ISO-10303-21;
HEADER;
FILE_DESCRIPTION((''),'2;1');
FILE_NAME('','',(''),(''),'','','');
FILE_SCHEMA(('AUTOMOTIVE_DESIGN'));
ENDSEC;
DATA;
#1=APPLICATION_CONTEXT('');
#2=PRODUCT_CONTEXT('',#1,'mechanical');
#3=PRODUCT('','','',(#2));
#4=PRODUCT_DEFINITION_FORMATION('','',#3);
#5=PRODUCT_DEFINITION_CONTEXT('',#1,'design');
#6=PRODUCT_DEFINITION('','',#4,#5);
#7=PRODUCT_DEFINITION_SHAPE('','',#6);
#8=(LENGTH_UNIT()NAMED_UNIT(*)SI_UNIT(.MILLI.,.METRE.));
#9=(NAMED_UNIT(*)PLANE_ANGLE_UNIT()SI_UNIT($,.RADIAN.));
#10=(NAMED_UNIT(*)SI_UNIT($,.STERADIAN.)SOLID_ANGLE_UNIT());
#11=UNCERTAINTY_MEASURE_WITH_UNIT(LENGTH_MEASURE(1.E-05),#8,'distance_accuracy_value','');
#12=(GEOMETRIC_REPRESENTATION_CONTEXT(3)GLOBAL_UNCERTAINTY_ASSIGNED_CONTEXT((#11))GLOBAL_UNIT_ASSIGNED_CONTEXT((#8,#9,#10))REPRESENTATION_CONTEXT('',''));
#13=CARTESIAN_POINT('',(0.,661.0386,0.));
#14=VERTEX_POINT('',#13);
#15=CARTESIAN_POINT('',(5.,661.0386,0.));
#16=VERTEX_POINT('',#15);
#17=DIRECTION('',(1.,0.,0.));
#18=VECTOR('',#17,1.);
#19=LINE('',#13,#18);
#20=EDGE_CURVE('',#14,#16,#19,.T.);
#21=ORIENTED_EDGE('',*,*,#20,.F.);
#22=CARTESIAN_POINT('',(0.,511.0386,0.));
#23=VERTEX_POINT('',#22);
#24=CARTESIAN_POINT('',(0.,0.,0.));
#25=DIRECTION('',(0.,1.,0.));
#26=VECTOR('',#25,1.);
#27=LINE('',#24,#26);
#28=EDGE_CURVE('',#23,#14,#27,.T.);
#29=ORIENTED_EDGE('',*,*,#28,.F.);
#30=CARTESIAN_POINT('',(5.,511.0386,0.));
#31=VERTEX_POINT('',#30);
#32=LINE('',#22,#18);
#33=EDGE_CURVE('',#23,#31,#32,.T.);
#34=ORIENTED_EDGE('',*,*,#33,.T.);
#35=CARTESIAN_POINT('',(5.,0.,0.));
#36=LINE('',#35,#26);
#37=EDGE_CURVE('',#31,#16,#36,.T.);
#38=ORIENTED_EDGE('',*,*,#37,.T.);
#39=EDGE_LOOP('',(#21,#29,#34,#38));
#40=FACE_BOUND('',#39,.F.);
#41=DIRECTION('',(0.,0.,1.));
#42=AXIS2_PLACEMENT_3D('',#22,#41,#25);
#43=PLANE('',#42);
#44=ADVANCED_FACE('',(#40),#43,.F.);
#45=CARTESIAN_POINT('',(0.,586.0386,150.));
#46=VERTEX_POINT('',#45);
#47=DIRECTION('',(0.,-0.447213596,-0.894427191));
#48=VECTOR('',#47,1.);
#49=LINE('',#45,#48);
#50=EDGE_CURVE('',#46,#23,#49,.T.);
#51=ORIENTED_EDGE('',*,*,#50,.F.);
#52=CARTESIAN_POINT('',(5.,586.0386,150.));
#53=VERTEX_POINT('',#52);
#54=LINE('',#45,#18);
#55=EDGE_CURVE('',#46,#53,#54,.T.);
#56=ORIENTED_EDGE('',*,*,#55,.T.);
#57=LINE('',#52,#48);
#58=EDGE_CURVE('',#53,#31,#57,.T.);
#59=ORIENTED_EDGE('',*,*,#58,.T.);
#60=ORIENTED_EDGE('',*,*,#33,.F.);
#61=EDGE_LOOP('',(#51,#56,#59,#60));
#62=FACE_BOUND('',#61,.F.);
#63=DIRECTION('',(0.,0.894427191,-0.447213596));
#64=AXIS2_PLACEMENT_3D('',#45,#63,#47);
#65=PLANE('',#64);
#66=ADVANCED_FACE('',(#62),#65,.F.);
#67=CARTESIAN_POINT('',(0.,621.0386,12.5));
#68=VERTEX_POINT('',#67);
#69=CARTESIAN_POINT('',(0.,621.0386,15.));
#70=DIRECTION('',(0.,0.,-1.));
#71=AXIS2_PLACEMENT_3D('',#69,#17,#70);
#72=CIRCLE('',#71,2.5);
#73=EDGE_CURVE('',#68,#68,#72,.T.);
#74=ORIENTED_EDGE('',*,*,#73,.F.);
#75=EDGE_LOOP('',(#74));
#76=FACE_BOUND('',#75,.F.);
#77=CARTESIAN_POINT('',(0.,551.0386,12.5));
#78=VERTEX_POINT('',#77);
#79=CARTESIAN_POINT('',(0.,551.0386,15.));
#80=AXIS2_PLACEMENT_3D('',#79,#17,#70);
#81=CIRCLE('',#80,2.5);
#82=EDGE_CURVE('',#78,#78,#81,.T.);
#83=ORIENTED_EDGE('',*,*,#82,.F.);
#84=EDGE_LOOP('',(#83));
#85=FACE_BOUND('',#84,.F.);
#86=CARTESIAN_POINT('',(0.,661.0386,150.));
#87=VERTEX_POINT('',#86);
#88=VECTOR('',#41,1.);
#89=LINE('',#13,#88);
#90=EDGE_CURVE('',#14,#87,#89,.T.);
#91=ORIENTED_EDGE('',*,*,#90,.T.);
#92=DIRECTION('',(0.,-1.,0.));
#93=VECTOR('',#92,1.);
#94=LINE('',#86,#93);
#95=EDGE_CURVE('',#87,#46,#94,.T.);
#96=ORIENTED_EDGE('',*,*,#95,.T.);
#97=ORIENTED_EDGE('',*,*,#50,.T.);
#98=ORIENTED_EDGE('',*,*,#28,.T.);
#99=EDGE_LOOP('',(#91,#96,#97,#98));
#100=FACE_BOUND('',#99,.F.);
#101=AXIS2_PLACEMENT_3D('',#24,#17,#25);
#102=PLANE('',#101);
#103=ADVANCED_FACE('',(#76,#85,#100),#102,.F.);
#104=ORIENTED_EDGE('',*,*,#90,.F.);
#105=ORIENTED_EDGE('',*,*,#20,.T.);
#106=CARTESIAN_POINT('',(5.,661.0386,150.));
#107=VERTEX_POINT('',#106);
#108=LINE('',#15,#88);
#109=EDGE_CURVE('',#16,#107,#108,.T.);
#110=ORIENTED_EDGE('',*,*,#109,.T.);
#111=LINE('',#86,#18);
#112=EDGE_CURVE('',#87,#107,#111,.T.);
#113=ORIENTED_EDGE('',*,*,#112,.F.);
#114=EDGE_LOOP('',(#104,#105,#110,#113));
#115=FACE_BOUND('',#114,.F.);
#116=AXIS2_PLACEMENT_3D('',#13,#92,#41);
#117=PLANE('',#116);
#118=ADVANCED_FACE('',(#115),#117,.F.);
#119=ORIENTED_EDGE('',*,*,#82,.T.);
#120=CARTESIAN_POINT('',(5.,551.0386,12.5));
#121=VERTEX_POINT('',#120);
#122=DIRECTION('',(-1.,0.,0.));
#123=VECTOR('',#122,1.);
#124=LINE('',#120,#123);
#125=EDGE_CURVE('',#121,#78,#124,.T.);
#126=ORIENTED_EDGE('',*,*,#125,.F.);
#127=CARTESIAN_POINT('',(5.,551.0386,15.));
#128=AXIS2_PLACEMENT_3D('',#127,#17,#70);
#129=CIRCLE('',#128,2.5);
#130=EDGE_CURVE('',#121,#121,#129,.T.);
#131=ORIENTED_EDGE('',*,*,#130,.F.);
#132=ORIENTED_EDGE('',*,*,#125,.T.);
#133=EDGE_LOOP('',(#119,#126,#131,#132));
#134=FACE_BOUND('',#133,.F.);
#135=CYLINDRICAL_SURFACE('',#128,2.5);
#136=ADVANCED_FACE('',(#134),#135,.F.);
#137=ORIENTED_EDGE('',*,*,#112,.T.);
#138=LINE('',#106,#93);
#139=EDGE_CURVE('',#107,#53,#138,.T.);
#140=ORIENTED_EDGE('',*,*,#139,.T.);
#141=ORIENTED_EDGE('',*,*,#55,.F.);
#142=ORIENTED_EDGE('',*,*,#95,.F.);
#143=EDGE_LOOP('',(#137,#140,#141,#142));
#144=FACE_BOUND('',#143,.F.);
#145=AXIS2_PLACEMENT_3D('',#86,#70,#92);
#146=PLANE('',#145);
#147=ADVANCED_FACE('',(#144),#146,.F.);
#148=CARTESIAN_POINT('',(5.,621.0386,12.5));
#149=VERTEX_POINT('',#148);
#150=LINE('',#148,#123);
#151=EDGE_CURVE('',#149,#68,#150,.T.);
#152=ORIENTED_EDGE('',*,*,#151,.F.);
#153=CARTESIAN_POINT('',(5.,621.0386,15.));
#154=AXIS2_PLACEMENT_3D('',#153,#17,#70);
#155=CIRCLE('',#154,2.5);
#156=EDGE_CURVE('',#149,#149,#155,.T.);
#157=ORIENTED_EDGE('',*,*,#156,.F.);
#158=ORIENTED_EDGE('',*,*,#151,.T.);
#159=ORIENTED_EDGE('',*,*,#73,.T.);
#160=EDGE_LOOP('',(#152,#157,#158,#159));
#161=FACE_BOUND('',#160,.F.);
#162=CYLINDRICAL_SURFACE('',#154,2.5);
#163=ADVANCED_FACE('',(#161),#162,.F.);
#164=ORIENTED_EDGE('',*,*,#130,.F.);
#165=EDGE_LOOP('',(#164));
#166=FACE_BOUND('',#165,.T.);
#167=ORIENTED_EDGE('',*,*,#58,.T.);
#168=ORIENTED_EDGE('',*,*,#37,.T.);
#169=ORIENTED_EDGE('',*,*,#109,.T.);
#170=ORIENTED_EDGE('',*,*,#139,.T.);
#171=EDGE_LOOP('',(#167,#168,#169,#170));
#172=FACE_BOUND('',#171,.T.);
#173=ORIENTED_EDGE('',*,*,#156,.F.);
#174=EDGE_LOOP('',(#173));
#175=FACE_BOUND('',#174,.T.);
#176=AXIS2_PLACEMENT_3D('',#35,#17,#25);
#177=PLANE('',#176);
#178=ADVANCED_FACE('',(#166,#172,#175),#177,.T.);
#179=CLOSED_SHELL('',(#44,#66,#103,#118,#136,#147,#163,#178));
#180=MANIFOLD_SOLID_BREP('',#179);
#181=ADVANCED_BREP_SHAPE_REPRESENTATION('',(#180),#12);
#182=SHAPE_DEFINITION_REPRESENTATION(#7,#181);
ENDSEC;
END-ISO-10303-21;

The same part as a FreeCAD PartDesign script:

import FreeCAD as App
import Part
import Sketcher
from FreeCAD import Vector
Q = App.Units.Quantity

doc = App.newDocument("Part")
body = doc.addObject("PartDesign::Body", "Body")

sketch1 = doc.addObject("Sketcher::SketchObject", "Sketch")
body.addObject(sketch1)
sketch1.AttachmentSupport = (doc.YZ_Plane, [""])
sketch1.MapMode = "FlatFace"
sketch1.addGeometry([
    Part.LineSegment(Vector(586, 150, 0), Vector(511, 0, 0)),
    Part.LineSegment(Vector(511, 0, 0), Vector(661, 0, 0)),
    Part.LineSegment(Vector(661, 0, 0), Vector(661, 150, 0)),
    Part.LineSegment(Vector(661, 150, 0), Vector(586, 150, 0)),
], False)
sketch1.addConstraint([
    Sketcher.Constraint("Coincident", 0, 2, 1, 1),
    Sketcher.Constraint("Coincident", 1, 2, 2, 1),
    Sketcher.Constraint("Coincident", 2, 2, 3, 1),
    Sketcher.Constraint("Coincident", 3, 2, 0, 1),
    Sketcher.Constraint("Horizontal", 1),
    Sketcher.Constraint("Vertical", 2),
    Sketcher.Constraint("Horizontal", 3),
    Sketcher.Constraint("PointOnObject", 0, 2, -1),
    Sketcher.Constraint("Equal", 1, 2),
    Sketcher.Constraint("DistanceX", 1, 1, 1, 2, Q("150 mm")),
    Sketcher.Constraint("DistanceX", 3, 2, 3, 1, Q("75 mm")),
    Sketcher.Constraint("DistanceX", -1, 1, 0, 2, Q("511.0386 mm")),
])
pad1 = doc.addObject("PartDesign::Pad", "Pad")
body.addObject(pad1)
pad1.Profile = sketch1
pad1.Length = 5

sketch2 = doc.addObject("Sketcher::SketchObject", "Sketch001")
body.addObject(sketch2)
sketch2.AttachmentSupport = (doc.YZ_Plane, [""])
sketch2.MapMode = "FlatFace"
sketch2.AttachmentOffset = App.Placement(Vector(0, 0, 5), App.Rotation())
sketch2.addGeometry([
    Part.Circle(Vector(621, 15, 0), Vector(0, 0, 1), 2.5),
    Part.Circle(Vector(551, 15, 0), Vector(0, 0, 1), 2.5),
], False)
sketch2.addConstraint([
    Sketcher.Constraint("Equal", 0, 1),
    Sketcher.Constraint("Horizontal", 0, 3, 1, 3),
    Sketcher.Constraint("Diameter", 0, Q("5 mm")),
    Sketcher.Constraint("DistanceY", -1, 1, 0, 3, Q("15 mm")),
    Sketcher.Constraint("DistanceX", 1, 3, 0, 3, Q("70 mm")),
    Sketcher.Constraint("DistanceX", -1, 1, 0, 3, Q("621.0386 mm")),
])
pocket1 = doc.addObject("PartDesign::Pocket", "Pocket")
body.addObject(pocket1)
pocket1.Profile = sketch2
pocket1.Length = 10
pocket1.Midplane = True

doc.recompute()
